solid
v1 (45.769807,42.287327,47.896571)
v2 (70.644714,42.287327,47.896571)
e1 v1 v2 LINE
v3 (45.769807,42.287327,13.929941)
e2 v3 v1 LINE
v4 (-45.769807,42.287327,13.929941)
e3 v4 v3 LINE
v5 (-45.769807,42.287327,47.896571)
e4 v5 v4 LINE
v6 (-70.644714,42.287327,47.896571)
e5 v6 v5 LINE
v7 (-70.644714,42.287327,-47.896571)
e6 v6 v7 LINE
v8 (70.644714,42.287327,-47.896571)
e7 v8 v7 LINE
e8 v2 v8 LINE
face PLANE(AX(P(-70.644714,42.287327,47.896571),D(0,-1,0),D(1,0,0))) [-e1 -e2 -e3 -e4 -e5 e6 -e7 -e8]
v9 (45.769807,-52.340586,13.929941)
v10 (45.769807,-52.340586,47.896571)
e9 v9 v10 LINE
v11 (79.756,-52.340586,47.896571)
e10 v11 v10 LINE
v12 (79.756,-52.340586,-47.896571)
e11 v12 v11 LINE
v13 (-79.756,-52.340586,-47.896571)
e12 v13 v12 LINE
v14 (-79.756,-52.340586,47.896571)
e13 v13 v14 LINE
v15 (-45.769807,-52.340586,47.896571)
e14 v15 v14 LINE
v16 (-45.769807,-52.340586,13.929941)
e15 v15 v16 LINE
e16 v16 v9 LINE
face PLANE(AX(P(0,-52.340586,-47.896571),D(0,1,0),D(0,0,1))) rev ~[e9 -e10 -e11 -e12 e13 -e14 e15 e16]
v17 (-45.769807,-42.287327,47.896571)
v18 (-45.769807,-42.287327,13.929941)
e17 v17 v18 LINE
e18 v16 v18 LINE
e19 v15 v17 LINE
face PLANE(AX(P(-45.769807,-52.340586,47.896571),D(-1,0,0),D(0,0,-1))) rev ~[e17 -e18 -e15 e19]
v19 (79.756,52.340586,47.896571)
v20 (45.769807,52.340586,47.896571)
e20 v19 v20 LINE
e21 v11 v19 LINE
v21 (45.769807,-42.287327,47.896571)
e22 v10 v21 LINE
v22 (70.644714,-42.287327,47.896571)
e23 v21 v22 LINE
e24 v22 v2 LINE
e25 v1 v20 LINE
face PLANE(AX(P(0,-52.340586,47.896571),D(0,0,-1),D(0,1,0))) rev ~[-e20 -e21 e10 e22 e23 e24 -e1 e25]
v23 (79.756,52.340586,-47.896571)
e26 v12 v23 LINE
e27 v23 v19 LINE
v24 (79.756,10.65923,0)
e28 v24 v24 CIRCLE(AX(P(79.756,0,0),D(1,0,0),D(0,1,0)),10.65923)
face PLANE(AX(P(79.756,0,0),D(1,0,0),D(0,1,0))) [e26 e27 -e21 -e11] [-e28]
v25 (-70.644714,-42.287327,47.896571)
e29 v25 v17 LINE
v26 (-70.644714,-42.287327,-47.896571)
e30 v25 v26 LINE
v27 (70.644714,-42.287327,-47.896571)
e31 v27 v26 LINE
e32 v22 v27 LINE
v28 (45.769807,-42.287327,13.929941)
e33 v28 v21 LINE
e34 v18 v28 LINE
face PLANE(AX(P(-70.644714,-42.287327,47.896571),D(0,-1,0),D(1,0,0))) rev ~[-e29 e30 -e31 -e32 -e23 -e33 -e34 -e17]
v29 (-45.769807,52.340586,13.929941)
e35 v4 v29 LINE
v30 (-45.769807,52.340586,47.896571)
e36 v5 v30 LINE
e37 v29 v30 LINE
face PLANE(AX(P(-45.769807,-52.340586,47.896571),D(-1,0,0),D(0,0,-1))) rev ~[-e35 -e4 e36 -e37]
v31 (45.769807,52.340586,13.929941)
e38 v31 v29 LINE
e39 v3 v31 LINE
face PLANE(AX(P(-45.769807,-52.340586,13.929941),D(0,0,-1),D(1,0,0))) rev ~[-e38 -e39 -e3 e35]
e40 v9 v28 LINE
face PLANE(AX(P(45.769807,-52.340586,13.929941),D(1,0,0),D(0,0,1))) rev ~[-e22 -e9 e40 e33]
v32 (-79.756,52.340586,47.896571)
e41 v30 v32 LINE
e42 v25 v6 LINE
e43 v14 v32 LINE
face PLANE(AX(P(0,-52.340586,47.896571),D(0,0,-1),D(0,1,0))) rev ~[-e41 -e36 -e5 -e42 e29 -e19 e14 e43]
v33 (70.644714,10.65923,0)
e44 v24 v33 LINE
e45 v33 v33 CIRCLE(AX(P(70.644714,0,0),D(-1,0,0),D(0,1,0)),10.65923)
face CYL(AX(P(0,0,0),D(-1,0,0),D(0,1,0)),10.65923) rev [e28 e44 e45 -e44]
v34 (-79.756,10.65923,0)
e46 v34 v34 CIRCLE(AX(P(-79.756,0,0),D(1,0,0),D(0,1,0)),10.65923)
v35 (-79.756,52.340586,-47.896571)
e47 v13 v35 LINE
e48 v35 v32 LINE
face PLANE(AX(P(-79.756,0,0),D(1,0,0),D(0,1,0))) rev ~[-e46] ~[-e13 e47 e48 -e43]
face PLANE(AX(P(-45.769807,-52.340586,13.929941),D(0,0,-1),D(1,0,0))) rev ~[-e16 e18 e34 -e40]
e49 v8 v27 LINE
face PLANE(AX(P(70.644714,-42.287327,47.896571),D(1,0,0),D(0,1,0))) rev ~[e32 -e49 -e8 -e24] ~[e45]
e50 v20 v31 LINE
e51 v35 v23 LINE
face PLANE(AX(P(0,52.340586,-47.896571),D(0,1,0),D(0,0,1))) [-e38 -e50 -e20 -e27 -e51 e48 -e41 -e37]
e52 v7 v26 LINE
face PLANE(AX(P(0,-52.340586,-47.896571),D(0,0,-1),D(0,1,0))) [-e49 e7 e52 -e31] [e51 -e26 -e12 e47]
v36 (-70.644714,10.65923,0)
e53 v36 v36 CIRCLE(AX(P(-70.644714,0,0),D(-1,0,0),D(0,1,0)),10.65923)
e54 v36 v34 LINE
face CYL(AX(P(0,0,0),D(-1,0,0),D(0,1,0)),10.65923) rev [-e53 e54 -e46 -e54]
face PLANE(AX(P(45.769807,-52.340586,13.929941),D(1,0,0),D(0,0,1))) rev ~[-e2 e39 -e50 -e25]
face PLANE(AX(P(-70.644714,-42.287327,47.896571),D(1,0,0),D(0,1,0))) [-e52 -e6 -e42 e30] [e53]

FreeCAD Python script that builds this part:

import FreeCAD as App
import Part
import Sketcher
from FreeCAD import Vector
Q = App.Units.Quantity

doc = App.newDocument("Part")
body = doc.addObject("PartDesign::Body", "Body")

# Sketch on YZ plane
sketch1 = body.newObject("Sketcher::SketchObject", "Sketch")
sketch1.AttachmentSupport = (doc.getObject("YZ_Plane"), [""])
sketch1.MapMode = "FlatFace"
sketch1.addGeometry(Part.LineSegment(Vector(-52, 48, 0), Vector(-52, -48, 0)), False)
sketch1.addGeometry(Part.LineSegment(Vector(-52, -48, 0), Vector(52, -48, 0)), False)
sketch1.addGeometry(Part.LineSegment(Vector(52, -48, 0), Vector(52, 48, 0)), False)
sketch1.addGeometry(Part.LineSegment(Vector(52, 48, 0), Vector(-52, 48, 0)), False)
sketch1.addGeometry(Part.Circle(Vector(0, 0, 0), Vector(0, 0, 1), 11), False)
sketch1.addConstraint(Sketcher.Constraint("Coincident", 0, 2, 1, 1))
sketch1.addConstraint(Sketcher.Constraint("Coincident", 1, 2, 2, 1))
sketch1.addConstraint(Sketcher.Constraint("Coincident", 2, 2, 3, 1))
sketch1.addConstraint(Sketcher.Constraint("Coincident", 3, 2, 0, 1))
sketch1.addConstraint(Sketcher.Constraint("Vertical", 0))
sketch1.addConstraint(Sketcher.Constraint("Horizontal", 1))
sketch1.addConstraint(Sketcher.Constraint("Vertical", 2))
sketch1.addConstraint(Sketcher.Constraint("Horizontal", 3))
sketch1.addConstraint(Sketcher.Constraint("Coincident", 4, 3, -1, 1))
sketch1.addConstraint(Sketcher.Constraint("Symmetric", 0, 2, 2, 2, -1, 1))
sketch1.addConstraint(Sketcher.Constraint("Diameter", 4, Q("21.31846 mm")))
sketch1.addConstraint(Sketcher.Constraint("DistanceX", 1, 1, 1, 2, Q("104.681172 mm")))
sketch1.addConstraint(Sketcher.Constraint("DistanceY", 0, 2, 0, 1, Q("95.793142 mm")))
pad1 = body.newObject("PartDesign::Pad", "Pad")
pad1.Profile = sketch1
pad1.Length = Q("6.28 in")
pad1.Midplane = True

# Sketch on XY plane
sketch2 = body.newObject("Sketcher::SketchObject", "Sketch001")
sketch2.AttachmentSupport = (doc.getObject("XY_Plane"), [""])
sketch2.MapMode = "FlatFace"
sketch2.AttachmentOffset = App.Placement(Vector(0, 0, 47.896571), App.Rotation())
sketch2.addGeometry(Part.LineSegment(Vector(-71, 42, 0), Vector(-71, -42, 0)), False)
sketch2.addGeometry(Part.LineSegment(Vector(-71, -42, 0), Vector(71, -42, 0)), False)
sketch2.addGeometry(Part.LineSegment(Vector(71, -42, 0), Vector(71, 42, 0)), False)
sketch2.addGeometry(Part.LineSegment(Vector(71, 42, 0), Vector(-71, 42, 0)), False)
sketch2.addConstraint(Sketcher.Constraint("Coincident", 0, 2, 1, 1))
sketch2.addConstraint(Sketcher.Constraint("Coincident", 1, 2, 2, 1))
sketch2.addConstraint(Sketcher.Constraint("Coincident", 2, 2, 3, 1))
sketch2.addConstraint(Sketcher.Constraint("Coincident", 3, 2, 0, 1))
sketch2.addConstraint(Sketcher.Constraint("Vertical", 0))
sketch2.addConstraint(Sketcher.Constraint("Horizontal", 1))
sketch2.addConstraint(Sketcher.Constraint("Vertical", 2))
sketch2.addConstraint(Sketcher.Constraint("Horizontal", 3))
sketch2.addConstraint(Sketcher.Constraint("Symmetric", 0, 2, 2, 2, -1, 1))
sketch2.addConstraint(Sketcher.Constraint("DistanceX", 1, 1, 1, 2, Q("141.289428 mm")))
sketch2.addConstraint(Sketcher.Constraint("DistanceY", 0, 2, 0, 1, Q("84.574654 mm")))
pocket1 = body.newObject("PartDesign::Pocket", "Pocket")
pocket1.Profile = sketch2
pocket1.Length = Q("4.69 in")

# Sketch on XZ plane
sketch3 = body.newObject("Sketcher::SketchObject", "Sketch002")
sketch3.AttachmentSupport = (doc.getObject("XZ_Plane"), [""])
sketch3.MapMode = "FlatFace"
sketch3.AttachmentOffset = App.Placement(Vector(0, 0, 52.340586), App.Rotation())
sketch3.addGeometry(Part.LineSegment(Vector(46, 48, 0), Vector(-46, 48, 0)), False)
sketch3.addGeometry(Part.LineSegment(Vector(-46, 48, 0), Vector(-46, 14, 0)), False)
sketch3.addGeometry(Part.LineSegment(Vector(-46, 14, 0), Vector(46, 14, 0)), False)
sketch3.addGeometry(Part.LineSegment(Vector(46, 14, 0), Vector(46, 48, 0)), False)
sketch3.addConstraint(Sketcher.Constraint("Coincident", 0, 2, 1, 1))
sketch3.addConstraint(Sketcher.Constraint("Coincident", 1, 2, 2, 1))
sketch3.addConstraint(Sketcher.Constraint("Coincident", 2, 2, 3, 1))
sketch3.addConstraint(Sketcher.Constraint("Coincident", 3, 2, 0, 1))
sketch3.addConstraint(Sketcher.Constraint("Horizontal", 0))
sketch3.addConstraint(Sketcher.Constraint("Vertical", 1))
sketch3.addConstraint(Sketcher.Constraint("Horizontal", 2))
sketch3.addConstraint(Sketcher.Constraint("Vertical", 3))
sketch3.addConstraint(Sketcher.Constraint("DistanceY", 1, 2, 1, 1, Q("33.96663 mm")))
sketch3.addConstraint(Sketcher.Constraint("DistanceX", 0, 2, 0, 1, Q("91.539614 mm")))
sketch3.addConstraint(Sketcher.Constraint("DistanceY", -1, 1, 0, 2, Q("47.896571 mm")))
sketch3.addConstraint(Sketcher.Constraint("DistanceX", 0, 2, -1, 1, Q("45.769807 mm")))
pocket2 = body.newObject("PartDesign::Pocket", "Pocket001")
pocket2.Profile = sketch3
pocket2.Length = Q("7.23 in")

doc.recompute()
